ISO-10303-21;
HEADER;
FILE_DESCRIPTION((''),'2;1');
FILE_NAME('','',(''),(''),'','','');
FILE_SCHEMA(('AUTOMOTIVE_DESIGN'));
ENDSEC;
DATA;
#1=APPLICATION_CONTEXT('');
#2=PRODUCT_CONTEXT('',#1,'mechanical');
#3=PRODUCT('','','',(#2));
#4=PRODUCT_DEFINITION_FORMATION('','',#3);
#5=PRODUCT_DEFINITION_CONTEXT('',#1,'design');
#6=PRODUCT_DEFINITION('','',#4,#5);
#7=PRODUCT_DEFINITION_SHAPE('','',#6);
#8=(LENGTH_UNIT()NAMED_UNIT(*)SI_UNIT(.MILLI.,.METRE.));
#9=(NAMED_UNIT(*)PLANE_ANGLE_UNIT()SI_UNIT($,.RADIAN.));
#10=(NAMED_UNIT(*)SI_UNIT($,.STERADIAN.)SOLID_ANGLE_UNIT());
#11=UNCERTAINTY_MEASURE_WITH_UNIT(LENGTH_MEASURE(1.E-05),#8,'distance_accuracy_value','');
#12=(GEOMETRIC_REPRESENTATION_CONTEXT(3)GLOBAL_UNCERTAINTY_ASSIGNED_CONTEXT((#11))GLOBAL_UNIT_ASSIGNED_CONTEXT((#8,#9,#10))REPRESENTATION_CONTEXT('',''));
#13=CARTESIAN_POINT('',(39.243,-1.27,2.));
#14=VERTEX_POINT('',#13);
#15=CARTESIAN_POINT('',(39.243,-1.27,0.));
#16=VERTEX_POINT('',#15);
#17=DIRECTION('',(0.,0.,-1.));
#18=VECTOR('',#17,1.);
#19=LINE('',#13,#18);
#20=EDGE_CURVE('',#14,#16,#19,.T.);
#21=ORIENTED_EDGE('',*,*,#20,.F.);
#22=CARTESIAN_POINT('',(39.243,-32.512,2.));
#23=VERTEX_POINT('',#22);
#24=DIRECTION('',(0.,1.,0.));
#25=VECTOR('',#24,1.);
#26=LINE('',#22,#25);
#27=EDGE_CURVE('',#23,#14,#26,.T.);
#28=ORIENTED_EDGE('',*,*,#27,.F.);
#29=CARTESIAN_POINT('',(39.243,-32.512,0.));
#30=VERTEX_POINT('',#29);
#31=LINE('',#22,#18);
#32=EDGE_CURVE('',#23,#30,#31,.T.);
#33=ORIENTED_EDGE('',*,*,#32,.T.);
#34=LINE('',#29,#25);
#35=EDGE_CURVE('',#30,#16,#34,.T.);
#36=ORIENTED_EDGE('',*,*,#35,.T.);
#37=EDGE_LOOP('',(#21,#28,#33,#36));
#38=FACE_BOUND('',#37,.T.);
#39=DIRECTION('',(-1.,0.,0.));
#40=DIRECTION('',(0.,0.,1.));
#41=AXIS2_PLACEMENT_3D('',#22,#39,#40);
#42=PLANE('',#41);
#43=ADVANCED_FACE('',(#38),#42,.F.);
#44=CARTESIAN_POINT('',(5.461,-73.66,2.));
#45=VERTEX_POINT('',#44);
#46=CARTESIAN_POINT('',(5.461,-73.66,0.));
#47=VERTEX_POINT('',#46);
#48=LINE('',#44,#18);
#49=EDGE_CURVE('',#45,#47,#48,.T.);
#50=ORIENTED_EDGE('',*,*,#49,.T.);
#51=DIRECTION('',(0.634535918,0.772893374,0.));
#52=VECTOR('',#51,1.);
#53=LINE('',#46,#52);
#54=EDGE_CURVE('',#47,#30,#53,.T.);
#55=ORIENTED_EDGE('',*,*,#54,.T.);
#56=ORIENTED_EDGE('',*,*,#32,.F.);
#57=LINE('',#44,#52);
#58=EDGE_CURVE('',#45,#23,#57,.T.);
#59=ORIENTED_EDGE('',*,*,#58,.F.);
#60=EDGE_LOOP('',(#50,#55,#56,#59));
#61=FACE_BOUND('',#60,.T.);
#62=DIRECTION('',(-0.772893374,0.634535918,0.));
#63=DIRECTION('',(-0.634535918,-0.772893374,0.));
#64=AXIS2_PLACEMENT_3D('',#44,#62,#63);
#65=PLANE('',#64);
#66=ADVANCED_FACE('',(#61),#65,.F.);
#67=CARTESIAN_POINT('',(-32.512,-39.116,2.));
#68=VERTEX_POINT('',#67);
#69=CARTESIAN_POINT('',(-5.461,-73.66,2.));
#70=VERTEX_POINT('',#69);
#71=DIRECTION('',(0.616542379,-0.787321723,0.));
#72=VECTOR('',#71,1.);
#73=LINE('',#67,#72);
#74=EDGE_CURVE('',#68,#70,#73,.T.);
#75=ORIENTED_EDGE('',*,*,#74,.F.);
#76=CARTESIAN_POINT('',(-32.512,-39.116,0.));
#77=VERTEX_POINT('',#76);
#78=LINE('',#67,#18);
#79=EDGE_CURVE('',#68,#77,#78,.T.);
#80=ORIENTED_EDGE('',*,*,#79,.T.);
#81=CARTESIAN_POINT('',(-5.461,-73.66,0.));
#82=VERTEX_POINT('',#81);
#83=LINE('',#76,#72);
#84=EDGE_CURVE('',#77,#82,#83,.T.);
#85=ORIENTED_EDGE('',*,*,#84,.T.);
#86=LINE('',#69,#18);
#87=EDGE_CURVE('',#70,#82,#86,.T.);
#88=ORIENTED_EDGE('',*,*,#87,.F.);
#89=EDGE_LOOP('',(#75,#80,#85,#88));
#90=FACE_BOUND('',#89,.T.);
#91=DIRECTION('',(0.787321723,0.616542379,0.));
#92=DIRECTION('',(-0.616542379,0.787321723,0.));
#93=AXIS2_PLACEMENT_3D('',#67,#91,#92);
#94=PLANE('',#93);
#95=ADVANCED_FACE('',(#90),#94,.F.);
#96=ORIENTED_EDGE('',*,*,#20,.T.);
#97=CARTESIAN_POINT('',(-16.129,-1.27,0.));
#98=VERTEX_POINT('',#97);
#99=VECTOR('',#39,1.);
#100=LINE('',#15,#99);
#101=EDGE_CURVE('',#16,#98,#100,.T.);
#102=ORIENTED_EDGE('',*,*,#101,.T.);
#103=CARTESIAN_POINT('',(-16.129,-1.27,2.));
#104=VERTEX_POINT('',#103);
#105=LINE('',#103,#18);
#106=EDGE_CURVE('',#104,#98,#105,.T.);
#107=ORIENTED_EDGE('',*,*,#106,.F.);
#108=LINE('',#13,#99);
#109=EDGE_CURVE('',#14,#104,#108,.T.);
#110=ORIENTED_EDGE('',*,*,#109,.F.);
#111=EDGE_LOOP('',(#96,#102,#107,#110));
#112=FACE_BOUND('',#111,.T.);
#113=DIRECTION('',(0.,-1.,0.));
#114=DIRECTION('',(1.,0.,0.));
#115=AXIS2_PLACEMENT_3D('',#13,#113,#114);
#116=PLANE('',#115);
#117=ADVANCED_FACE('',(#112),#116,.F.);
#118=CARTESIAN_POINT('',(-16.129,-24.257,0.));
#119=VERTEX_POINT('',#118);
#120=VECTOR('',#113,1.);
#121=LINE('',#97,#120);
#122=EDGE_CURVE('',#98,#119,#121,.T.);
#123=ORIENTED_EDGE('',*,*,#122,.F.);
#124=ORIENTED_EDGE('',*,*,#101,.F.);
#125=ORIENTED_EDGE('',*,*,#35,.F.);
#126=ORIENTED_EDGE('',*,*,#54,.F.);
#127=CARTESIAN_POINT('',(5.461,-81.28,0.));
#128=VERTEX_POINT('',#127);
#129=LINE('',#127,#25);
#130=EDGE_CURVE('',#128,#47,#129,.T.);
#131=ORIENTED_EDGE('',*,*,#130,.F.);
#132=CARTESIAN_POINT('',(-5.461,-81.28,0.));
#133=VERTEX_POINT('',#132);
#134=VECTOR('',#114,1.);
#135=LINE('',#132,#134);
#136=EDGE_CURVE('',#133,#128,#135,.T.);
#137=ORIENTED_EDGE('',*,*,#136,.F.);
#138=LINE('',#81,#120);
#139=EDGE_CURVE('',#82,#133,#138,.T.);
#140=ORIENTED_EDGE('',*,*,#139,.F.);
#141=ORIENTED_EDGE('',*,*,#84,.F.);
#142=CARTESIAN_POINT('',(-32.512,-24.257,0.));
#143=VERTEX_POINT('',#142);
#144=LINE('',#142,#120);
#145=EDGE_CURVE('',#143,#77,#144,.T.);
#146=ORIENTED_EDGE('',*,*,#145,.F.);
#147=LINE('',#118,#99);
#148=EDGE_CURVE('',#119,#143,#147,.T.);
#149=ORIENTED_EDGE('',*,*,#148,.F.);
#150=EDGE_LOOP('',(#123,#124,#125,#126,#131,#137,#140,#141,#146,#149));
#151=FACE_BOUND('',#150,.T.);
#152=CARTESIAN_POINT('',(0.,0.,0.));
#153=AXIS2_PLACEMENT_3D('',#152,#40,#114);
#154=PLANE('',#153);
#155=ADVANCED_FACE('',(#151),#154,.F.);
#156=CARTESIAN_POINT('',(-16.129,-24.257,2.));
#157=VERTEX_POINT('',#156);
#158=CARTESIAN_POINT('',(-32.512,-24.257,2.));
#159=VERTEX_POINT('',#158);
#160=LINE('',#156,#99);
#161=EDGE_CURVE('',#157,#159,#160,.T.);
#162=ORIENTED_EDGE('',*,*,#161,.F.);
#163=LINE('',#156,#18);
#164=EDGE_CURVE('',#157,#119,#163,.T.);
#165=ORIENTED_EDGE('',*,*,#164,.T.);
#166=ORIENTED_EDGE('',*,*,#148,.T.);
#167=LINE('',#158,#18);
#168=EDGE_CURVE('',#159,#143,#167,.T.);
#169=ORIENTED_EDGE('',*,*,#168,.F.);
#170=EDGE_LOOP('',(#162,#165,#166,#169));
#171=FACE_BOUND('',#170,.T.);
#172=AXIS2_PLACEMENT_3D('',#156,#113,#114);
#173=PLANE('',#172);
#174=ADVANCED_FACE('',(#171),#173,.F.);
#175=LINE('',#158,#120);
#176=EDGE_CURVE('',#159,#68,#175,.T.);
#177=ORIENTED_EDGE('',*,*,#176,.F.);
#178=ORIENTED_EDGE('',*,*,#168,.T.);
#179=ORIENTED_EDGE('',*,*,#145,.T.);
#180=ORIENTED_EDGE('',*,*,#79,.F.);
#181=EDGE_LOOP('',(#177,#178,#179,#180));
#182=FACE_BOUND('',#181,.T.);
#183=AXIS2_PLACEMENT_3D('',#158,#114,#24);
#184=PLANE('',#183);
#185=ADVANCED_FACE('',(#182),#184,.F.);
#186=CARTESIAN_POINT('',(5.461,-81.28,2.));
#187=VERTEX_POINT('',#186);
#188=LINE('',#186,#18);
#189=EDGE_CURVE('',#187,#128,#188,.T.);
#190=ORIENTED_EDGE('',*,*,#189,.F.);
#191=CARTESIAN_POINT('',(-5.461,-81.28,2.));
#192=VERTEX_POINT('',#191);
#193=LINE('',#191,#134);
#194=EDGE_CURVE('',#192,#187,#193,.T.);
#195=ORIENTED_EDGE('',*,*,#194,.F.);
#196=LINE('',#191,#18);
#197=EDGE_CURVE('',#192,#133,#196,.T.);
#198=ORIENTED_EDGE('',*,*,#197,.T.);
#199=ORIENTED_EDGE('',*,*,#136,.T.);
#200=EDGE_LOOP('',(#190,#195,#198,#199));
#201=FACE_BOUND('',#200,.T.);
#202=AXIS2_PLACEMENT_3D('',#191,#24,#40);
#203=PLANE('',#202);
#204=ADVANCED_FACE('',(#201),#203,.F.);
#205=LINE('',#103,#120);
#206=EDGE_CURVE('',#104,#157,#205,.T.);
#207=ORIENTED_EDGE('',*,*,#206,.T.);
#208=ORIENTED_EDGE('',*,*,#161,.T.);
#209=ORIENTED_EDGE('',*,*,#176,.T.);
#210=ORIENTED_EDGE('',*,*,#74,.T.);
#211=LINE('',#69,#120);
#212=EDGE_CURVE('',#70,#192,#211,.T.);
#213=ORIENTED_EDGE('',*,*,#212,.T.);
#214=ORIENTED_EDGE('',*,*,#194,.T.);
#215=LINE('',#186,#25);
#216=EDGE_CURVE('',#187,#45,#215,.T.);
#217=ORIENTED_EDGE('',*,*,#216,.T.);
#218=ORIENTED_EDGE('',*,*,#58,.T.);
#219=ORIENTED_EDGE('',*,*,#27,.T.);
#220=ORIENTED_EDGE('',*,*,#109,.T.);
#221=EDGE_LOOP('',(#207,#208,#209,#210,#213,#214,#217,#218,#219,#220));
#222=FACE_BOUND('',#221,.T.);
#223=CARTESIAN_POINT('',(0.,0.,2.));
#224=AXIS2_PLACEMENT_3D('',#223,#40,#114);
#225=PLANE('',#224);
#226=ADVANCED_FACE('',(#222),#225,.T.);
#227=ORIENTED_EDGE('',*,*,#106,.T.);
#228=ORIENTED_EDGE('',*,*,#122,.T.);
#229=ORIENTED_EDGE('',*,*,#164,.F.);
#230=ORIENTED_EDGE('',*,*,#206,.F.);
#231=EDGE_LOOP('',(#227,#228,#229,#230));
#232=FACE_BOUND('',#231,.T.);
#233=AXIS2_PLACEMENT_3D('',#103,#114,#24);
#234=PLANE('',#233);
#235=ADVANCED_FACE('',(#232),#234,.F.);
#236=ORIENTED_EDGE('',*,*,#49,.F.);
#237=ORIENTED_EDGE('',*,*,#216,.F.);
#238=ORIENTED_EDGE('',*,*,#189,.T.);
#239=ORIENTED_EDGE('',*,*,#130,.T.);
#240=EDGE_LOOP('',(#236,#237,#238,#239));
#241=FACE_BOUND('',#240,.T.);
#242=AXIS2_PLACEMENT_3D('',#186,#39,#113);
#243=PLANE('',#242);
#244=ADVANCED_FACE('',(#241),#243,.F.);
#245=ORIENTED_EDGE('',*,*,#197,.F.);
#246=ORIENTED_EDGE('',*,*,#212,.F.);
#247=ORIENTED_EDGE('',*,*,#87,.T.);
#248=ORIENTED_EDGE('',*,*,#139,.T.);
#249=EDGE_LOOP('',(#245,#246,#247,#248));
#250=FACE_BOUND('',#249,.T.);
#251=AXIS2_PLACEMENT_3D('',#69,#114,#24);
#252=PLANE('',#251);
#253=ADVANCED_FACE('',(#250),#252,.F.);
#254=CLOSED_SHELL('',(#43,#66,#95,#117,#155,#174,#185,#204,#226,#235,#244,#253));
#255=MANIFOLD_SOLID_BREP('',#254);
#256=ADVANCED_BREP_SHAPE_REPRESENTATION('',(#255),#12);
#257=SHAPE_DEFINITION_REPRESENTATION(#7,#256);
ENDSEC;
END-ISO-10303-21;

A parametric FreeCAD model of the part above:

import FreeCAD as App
import Part
import Sketcher
from FreeCAD import Vector
Q = App.Units.Quantity


def add_polygon(sketch, points):
    """Adds a closed chain of lines whose ends are joined by coincident constraints."""
    first, n = sketch.GeometryCount, len(points)
    for a, b in zip(points, points[1:] + points[:1]):
        sketch.addGeometry(Part.LineSegment(App.Vector(*a, 0), App.Vector(*b, 0)), False)
    for i in range(n):
        sketch.addConstraint(Sketcher.Constraint("Coincident", first + i, 2, first + (i + 1) % n, 1))

doc = App.newDocument("Part")
body = doc.addObject("PartDesign::Body", "Body")

sketch1 = body.newObject("Sketcher::SketchObject", "Sketch")
sketch1.AttachmentSupport = (doc.getObject("XY_Plane"), [""])
sketch1.MapMode = "FlatFace"
add_polygon(sketch1, [(-16.129, -1.27), (-16.129, -24.257), (-32.512, -24.257), (-32.512, -39.116), (-5.461, -73.66), (-5.461, -81.28), (5.461, -81.28), (5.461, -73.66), (39.243, -32.512), (39.243, -1.27)])
sketch1.addConstraint([
    Sketcher.Constraint("Vertical", 0),
    Sketcher.Constraint("Horizontal", 1),
    Sketcher.Constraint("Vertical", 2),
    Sketcher.Constraint("Vertical", 4),
    Sketcher.Constraint("Horizontal", 5),
    Sketcher.Constraint("Vertical", 6),
    Sketcher.Constraint("Vertical", 8),
    Sketcher.Constraint("Horizontal", 9),
    Sketcher.Constraint("Symmetric", 3, 2, 6, 2, -2),
    Sketcher.Constraint("DistanceY", 4, 2, 4, 1, Q("0.3 in")),
    Sketcher.Constraint("DistanceX", 5, 1, 5, 2, Q("0.43 in")),
    Sketcher.Constraint("DistanceX", 9, 2, 9, 1, Q("2.18 in")),
    Sketcher.Constraint("DistanceY", 8, 1, 8, 2, Q("1.23 in")),
    Sketcher.Constraint("DistanceY", 3, 2, -1, 1, Q("2.9 in")),
    Sketcher.Constraint("DistanceX", 1, 2, 1, 1, Q("0.645 in")),
    Sketcher.Constraint("DistanceY", 0, 2, 0, 1, Q("0.905 in")),
    Sketcher.Constraint("DistanceY", 2, 2, 2, 1, Q("0.585 in")),
    Sketcher.Constraint("DistanceX", 1, 2, -1, 1, Q("1.28 in")),
    Sketcher.Constraint("DistanceY", 2, 2, -1, 1, Q("1.54 in")),
])
pad1 = body.newObject("PartDesign::Pad", "Pad")
pad1.Profile = sketch1
pad1.Length = 2

doc.recompute()
